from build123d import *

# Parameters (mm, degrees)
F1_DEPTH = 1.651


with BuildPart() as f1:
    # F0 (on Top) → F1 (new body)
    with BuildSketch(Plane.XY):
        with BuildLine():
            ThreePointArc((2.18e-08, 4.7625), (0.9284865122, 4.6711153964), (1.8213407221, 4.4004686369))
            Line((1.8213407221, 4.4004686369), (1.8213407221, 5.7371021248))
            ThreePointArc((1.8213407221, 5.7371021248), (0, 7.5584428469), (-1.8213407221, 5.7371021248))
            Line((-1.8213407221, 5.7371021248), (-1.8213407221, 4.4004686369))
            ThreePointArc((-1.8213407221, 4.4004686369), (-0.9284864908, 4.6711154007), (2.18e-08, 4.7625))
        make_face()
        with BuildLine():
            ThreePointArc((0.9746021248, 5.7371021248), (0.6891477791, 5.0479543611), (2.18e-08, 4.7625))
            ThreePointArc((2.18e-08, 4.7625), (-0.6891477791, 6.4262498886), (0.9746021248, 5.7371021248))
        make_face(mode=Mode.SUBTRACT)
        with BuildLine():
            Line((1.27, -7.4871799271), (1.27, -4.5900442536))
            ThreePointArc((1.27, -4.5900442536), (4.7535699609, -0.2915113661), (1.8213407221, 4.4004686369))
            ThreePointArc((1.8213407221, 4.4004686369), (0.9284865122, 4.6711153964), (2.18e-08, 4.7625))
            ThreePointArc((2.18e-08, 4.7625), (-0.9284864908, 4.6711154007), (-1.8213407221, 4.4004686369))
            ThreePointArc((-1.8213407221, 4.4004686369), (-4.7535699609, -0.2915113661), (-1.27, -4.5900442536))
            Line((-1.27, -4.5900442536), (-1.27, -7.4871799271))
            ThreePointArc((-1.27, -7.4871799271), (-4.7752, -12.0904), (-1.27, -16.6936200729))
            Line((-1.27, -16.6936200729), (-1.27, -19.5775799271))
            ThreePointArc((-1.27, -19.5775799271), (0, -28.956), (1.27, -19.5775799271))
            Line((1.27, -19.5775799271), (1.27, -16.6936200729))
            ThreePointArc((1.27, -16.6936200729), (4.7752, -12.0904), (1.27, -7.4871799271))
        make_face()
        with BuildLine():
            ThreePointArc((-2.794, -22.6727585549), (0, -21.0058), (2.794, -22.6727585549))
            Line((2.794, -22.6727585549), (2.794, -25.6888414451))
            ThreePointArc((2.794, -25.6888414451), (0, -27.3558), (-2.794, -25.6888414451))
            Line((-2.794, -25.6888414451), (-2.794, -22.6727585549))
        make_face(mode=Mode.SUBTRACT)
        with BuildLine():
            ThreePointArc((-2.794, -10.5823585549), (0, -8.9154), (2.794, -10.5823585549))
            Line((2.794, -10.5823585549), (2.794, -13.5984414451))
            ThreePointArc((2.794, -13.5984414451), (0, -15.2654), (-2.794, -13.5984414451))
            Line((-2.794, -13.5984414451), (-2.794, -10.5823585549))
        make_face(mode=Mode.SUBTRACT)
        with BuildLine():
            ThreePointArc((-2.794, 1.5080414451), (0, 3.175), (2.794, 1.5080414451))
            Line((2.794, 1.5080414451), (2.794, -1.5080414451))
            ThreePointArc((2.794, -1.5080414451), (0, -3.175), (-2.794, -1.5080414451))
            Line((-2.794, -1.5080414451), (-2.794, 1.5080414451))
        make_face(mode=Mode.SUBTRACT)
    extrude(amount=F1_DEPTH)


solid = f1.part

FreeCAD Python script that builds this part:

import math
import FreeCAD as App
import Part
import Sketcher
Q = App.Units.Quantity

doc = App.newDocument("Part")
body = doc.addObject("PartDesign::Body", "Body")

sketch1 = doc.addObject("Sketcher::SketchObject", "Sketch")
body.addObject(sketch1)
sketch1.AttachmentSupport = (doc.XY_Plane, [""])
sketch1.MapMode = "FlatFace"
sketch1.addGeometry([
    Part.LineSegment(App.Vector(-1.8, 5.7, 0), App.Vector(-1.8, 4.4, 0)),
    Part.ArcOfCircle(Part.Circle(App.Vector(0, 0, 0), App.Vector(0, 0, 1), 4.8), math.radians(112), math.radians(255)),
    Part.LineSegment(App.Vector(-1.3, -4.6, 0), App.Vector(-1.3, -7.5, 0)),
    Part.ArcOfCircle(Part.Circle(App.Vector(0, -12.1, 0), App.Vector(0, 0, 1), 4.8), math.radians(105), math.radians(255)),
    Part.LineSegment(App.Vector(-1.3, -16.7, 0), App.Vector(-1.3, -19.6, 0)),
    Part.ArcOfCircle(Part.Circle(App.Vector(0, -24.2, 0), App.Vector(0, 0, 1), 4.8), math.radians(105), math.radians(435)),
    Part.LineSegment(App.Vector(1.3, -19.6, 0), App.Vector(1.3, -16.7, 0)),
    Part.ArcOfCircle(Part.Circle(App.Vector(0, -12.1, 0), App.Vector(0, 0, 1), 4.8), math.radians(-75), math.radians(75)),
    Part.LineSegment(App.Vector(1.3, -7.5, 0), App.Vector(1.3, -4.6, 0)),
    Part.ArcOfCircle(Part.Circle(App.Vector(0, 0, 0), App.Vector(0, 0, 1), 4.8), math.radians(-75), math.radians(68)),
    Part.LineSegment(App.Vector(1.8, 4.4, 0), App.Vector(1.8, 5.7, 0)),
    Part.ArcOfCircle(Part.Circle(App.Vector(0, 5.7, 0), App.Vector(0, 0, 1), 1.8), math.radians(0), math.radians(180)),
    Part.LineSegment(App.Vector(-2.8, -25.7, 0), App.Vector(-2.8, -22.7, 0)),
    Part.ArcOfCircle(Part.Circle(App.Vector(0, -24.2, 0), App.Vector(0, 0, 1), 3.2), math.radians(28), math.radians(152)),
    Part.LineSegment(App.Vector(2.8, -22.7, 0), App.Vector(2.8, -25.7, 0)),
    Part.ArcOfCircle(Part.Circle(App.Vector(0, -24.2, 0), App.Vector(0, 0, 1), 3.2), math.radians(-152), math.radians(-28)),
    Part.LineSegment(App.Vector(-2.8, -13.6, 0), App.Vector(-2.8, -10.6, 0)),
    Part.ArcOfCircle(Part.Circle(App.Vector(0, -12.1, 0), App.Vector(0, 0, 1), 3.2), math.radians(28), math.radians(152)),
    Part.LineSegment(App.Vector(2.8, -10.6, 0), App.Vector(2.8, -13.6, 0)),
    Part.ArcOfCircle(Part.Circle(App.Vector(0, -12.1, 0), App.Vector(0, 0, 1), 3.2), math.radians(-152), math.radians(-28)),
    Part.ArcOfCircle(Part.Circle(App.Vector(0, 5.7, 0), App.Vector(0, 0, 1), 1), math.radians(-90), math.radians(0)),
    Part.ArcOfCircle(Part.Circle(App.Vector(0, 5.7, 0), App.Vector(0, 0, 1), 1), math.radians(0), math.radians(270)),
    Part.LineSegment(App.Vector(-2.8, -1.5, 0), App.Vector(-2.8, 1.5, 0)),
    Part.ArcOfCircle(Part.Circle(App.Vector(0, 0, 0), App.Vector(0, 0, 1), 3.2), math.radians(28), math.radians(152)),
    Part.LineSegment(App.Vector(2.8, 1.5, 0), App.Vector(2.8, -1.5, 0)),
    Part.ArcOfCircle(Part.Circle(App.Vector(0, 0, 0), App.Vector(0, 0, 1), 3.2), math.radians(-152), math.radians(-28)),
], False)
sketch1.addConstraint([
    Sketcher.Constraint("Coincident", 0, 2, 1, 1),
    Sketcher.Constraint("Coincident", 1, 2, 2, 1),
    Sketcher.Constraint("Coincident", 2, 2, 3, 1),
    Sketcher.Constraint("Coincident", 3, 2, 4, 1),
    Sketcher.Constraint("Coincident", 4, 2, 5, 1),
    Sketcher.Constraint("Coincident", 5, 2, 6, 1),
    Sketcher.Constraint("Coincident", 6, 2, 7, 1),
    Sketcher.Constraint("Coincident", 7, 2, 8, 1),
    Sketcher.Constraint("Coincident", 8, 2, 9, 1),
    Sketcher.Constraint("Coincident", 9, 2, 10, 1),
    Sketcher.Constraint("Tangent", 10, 2, 11, 1),
    Sketcher.Constraint("Tangent", 11, 2, 0, 1),
    Sketcher.Constraint("Coincident", 12, 2, 13, 2),
    Sketcher.Constraint("Coincident", 13, 1, 14, 1),
    Sketcher.Constraint("Coincident", 14, 2, 15, 2),
    Sketcher.Constraint("Coincident", 15, 1, 12, 1),
    Sketcher.Constraint("Coincident", 16, 2, 17, 2),
    Sketcher.Constraint("Coincident", 17, 1, 18, 1),
    Sketcher.Constraint("Coincident", 18, 2, 19, 2),
    Sketcher.Constraint("Coincident", 19, 1, 16, 1),
    Sketcher.Constraint("Tangent", 20, 1, 21, 2),
    Sketcher.Constraint("Coincident", 21, 1, 20, 2),
    Sketcher.Constraint("Coincident", 22, 2, 23, 2),
    Sketcher.Constraint("Coincident", 23, 1, 24, 1),
    Sketcher.Constraint("Coincident", 24, 2, 25, 2),
    Sketcher.Constraint("Coincident", 25, 1, 22, 1),
    Sketcher.Constraint("Vertical", 0),
    Sketcher.Constraint("Vertical", 2),
    Sketcher.Constraint("Vertical", 4),
    Sketcher.Constraint("Vertical", 6),
    Sketcher.Constraint("Vertical", 8),
    Sketcher.Constraint("Vertical", 10),
    Sketcher.Constraint("Vertical", 12),
    Sketcher.Constraint("Vertical", 14),
    Sketcher.Constraint("Vertical", 16),
    Sketcher.Constraint("Vertical", 18),
    Sketcher.Constraint("Vertical", 22),
    Sketcher.Constraint("Vertical", 24),
    Sketcher.Constraint("Coincident", 1, 3, -1, 1),
    Sketcher.Constraint("Coincident", 9, 3, -1, 1),
    Sketcher.Constraint("Coincident", 23, 3, -1, 1),
    Sketcher.Constraint("Coincident", 25, 3, -1, 1),
    Sketcher.Constraint("Coincident", 7, 3, 3, 3),
    Sketcher.Constraint("Coincident", 13, 3, 5, 3),
    Sketcher.Constraint("Coincident", 15, 3, 5, 3),
    Sketcher.Constraint("Coincident", 17, 3, 3, 3),
    Sketcher.Constraint("Coincident", 19, 3, 3, 3),
    Sketcher.Constraint("Coincident", 20, 3, 11, 3),
    Sketcher.Constraint("Equal", 3, 5),
    Sketcher.Constraint("Equal", 5, 7),
    Sketcher.Constraint("Equal", 1, 9),
    Sketcher.Constraint("Equal", 13, 15),
    Sketcher.Constraint("Equal", 15, 17),
    Sketcher.Constraint("Equal", 17, 19),
    Sketcher.Constraint("Equal", 19, 23),
    Sketcher.Constraint("Equal", 23, 25),
    Sketcher.Constraint("Symmetric", 4, 2, 5, 2, -2),
    Sketcher.Constraint("Symmetric", 2, 2, 7, 2, -2),
    Sketcher.Constraint("PointOnObject", 11, 3, -2),
    Sketcher.Constraint("PointOnObject", 20, 1, -2),
    Sketcher.Constraint("Horizontal", 12, 2, 13, 1),
    Sketcher.Constraint("Horizontal", 16, 2, 17, 1),
    Sketcher.Constraint("Horizontal", 11, 2, 21, 1),
    Sketcher.Constraint("Horizontal", 22, 2, 23, 1),
    Sketcher.Constraint("Vertical", 2, 2, 3, 2),
    Sketcher.Constraint("Vertical", 15, 1, 16, 2),
    Sketcher.Constraint("Vertical", 19, 1, 22, 2),
    Sketcher.Constraint("Radius", 1, Q("0.1875 in")),
    Sketcher.Constraint("Radius", 3, Q("0.188 in")),
    Sketcher.Constraint("Radius", 13, Q("0.125 in")),
    Sketcher.Constraint("DistanceX", 4, 2, 5, 2, Q("0.1 in")),
    Sketcher.Constraint("DistanceX", 12, 2, -1, 1, Q("0.11 in")),
    Sketcher.Constraint("DistanceY", 3, 3, -1, 1, Q("0.476 in")),
    Sketcher.Constraint("DistanceY", 5, 3, -1, 1, Q("0.952 in")),
    Sketcher.Constraint("DistanceY", -1, 1, 20, 1, Q("0.1875 in")),
    Sketcher.Constraint("Radius", 11, Q("1.821341 mm")),
    Sketcher.Constraint("Radius", 20, Q("0.974602 mm")),
])
pad1 = doc.addObject("PartDesign::Pad", "Pad")
body.addObject(pad1)
pad1.Profile = sketch1
pad1.Length = Q("0.065 in")

doc.recompute()
